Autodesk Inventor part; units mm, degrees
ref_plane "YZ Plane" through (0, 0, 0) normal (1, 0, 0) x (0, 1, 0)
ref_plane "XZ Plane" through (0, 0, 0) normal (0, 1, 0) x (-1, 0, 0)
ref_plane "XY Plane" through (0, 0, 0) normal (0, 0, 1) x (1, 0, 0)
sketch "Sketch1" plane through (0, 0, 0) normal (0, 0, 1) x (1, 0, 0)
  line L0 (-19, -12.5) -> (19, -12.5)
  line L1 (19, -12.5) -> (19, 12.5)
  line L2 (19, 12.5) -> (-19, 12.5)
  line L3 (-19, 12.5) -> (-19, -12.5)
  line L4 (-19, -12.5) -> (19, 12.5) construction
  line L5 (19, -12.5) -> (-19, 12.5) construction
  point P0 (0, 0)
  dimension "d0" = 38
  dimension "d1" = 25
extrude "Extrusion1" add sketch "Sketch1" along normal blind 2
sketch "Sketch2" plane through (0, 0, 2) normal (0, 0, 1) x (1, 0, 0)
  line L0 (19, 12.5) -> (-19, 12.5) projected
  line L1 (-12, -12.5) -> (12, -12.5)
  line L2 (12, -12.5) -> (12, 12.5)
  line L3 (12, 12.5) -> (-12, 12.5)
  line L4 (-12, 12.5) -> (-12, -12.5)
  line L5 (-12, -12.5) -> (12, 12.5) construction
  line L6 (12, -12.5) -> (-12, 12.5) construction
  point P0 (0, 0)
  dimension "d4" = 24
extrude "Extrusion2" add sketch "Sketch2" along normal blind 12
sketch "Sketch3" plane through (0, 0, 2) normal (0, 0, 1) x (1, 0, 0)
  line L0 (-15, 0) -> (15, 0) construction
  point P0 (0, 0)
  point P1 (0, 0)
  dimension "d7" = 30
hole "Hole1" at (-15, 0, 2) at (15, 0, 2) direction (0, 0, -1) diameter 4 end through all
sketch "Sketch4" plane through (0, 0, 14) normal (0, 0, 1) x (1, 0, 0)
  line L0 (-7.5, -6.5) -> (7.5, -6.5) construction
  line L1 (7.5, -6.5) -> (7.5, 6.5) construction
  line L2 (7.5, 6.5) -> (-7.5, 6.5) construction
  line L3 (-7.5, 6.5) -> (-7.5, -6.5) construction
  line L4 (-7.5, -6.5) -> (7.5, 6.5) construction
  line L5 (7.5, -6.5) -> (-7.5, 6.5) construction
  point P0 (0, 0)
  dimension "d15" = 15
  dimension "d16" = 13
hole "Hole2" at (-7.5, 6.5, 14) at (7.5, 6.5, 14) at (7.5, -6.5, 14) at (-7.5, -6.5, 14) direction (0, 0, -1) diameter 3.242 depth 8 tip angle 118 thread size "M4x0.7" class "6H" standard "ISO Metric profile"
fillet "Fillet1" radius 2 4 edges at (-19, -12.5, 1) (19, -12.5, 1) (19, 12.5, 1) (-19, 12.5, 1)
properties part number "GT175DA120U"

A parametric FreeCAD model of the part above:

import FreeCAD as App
import Part
import Sketcher
Q = App.Units.Quantity


def edges_at(feature, points):
    """Names of the edges that pass closest to the given points."""
    edges = feature.Shape.Edges
    near = lambda p: min(range(len(edges)), key=lambda i: edges[i].distToShape(Part.Vertex(*p))[0])
    return sorted({f"Edge{near(p) + 1}" for p in points})

doc = App.newDocument("Part")
body = doc.addObject("PartDesign::Body", "Body")

# Sketch on XY plane
sketch1 = body.newObject("Sketcher::SketchObject", "Sketch")
sketch1.AttachmentSupport = (doc.getObject("XY_Plane"), [""])
sketch1.MapMode = "FlatFace"
sketch1.addGeometry([
    Part.LineSegment(App.Vector(-19, 12, 0), App.Vector(-19, -12, 0)),
    Part.LineSegment(App.Vector(-19, -12, 0), App.Vector(19, -12, 0)),
    Part.LineSegment(App.Vector(19, -12, 0), App.Vector(19, 12, 0)),
    Part.LineSegment(App.Vector(19, 12, 0), App.Vector(-19, 12, 0)),
], False)
sketch1.addConstraint([
    Sketcher.Constraint("Coincident", 0, 2, 1, 1),
    Sketcher.Constraint("Coincident", 1, 2, 2, 1),
    Sketcher.Constraint("Coincident", 2, 2, 3, 1),
    Sketcher.Constraint("Coincident", 3, 2, 0, 1),
    Sketcher.Constraint("Vertical", 0),
    Sketcher.Constraint("Horizontal", 1),
    Sketcher.Constraint("Vertical", 2),
    Sketcher.Constraint("Horizontal", 3),
    Sketcher.Constraint("Symmetric", 0, 2, 2, 2, -1, 1),
    Sketcher.Constraint("DistanceX", 1, 1, 1, 2, Q("38 mm")),
    Sketcher.Constraint("DistanceY", 0, 2, 0, 1, Q("25 mm")),
])
pad1 = body.newObject("PartDesign::Pad", "Pad")
pad1.Profile = sketch1
pad1.Length = 2

# Sketch on XY plane
sketch2 = body.newObject("Sketcher::SketchObject", "Sketch001")
sketch2.AttachmentSupport = (doc.getObject("XY_Plane"), [""])
sketch2.MapMode = "FlatFace"
sketch2.AttachmentOffset = App.Placement(App.Vector(0, 0, 2), App.Rotation())
sketch2.addGeometry([
    Part.LineSegment(App.Vector(12, -12, 0), App.Vector(12, 12, 0)),
    Part.LineSegment(App.Vector(12, 12, 0), App.Vector(-12, 12, 0)),
    Part.LineSegment(App.Vector(-12, 12, 0), App.Vector(-12, -12, 0)),
    Part.LineSegment(App.Vector(-12, -12, 0), App.Vector(12, -12, 0)),
], False)
sketch2.addConstraint([
    Sketcher.Constraint("Coincident", 0, 2, 1, 1),
    Sketcher.Constraint("Coincident", 1, 2, 2, 1),
    Sketcher.Constraint("Coincident", 2, 2, 3, 1),
    Sketcher.Constraint("Coincident", 3, 2, 0, 1),
    Sketcher.Constraint("Vertical", 0),
    Sketcher.Constraint("Horizontal", 1),
    Sketcher.Constraint("Vertical", 2),
    Sketcher.Constraint("Horizontal", 3),
    Sketcher.Constraint("Symmetric", 0, 2, 2, 2, -1, 1),
    Sketcher.Constraint("DistanceX", 1, 2, 1, 1, Q("24 mm")),
    Sketcher.Constraint("DistanceY", 0, 1, 0, 2, Q("25 mm")),
])
pad2 = body.newObject("PartDesign::Pad", "Pad001")
pad2.Profile = sketch2
pad2.Length = 12

# Sketch on XY plane
sketch3 = body.newObject("Sketcher::SketchObject", "Sketch002")
sketch3.AttachmentSupport = (doc.getObject("XY_Plane"), [""])
sketch3.MapMode = "FlatFace"
sketch3.AttachmentOffset = App.Placement(App.Vector(0, 0, 2), App.Rotation())
sketch3.addGeometry([
    Part.Circle(App.Vector(-15, 0, 0), App.Vector(0, 0, 1), 2),
    Part.Circle(App.Vector(15, 0, 0), App.Vector(0, 0, 1), 2),
], False)
sketch3.addConstraint([
    Sketcher.Constraint("Equal", 0, 1),
    Sketcher.Constraint("Symmetric", 0, 3, 1, 3, -1, 1),
    Sketcher.Constraint("PointOnObject", 0, 3, -1),
    Sketcher.Constraint("Diameter", 0, Q("4 mm")),
    Sketcher.Constraint("DistanceX", 0, 3, -1, 1, Q("15 mm")),
])
doc.recompute()
hole = body.newObject("PartDesign::Hole", "Hole")
hole.Profile = sketch3
hole.ThreadType = "None"
hole.Diameter = 4
hole.DepthType = "ThroughAll"

# Sketch on XY plane
sketch4 = body.newObject("Sketcher::SketchObject", "Sketch003")
sketch4.AttachmentSupport = (doc.getObject("XY_Plane"), [""])
sketch4.MapMode = "FlatFace"
sketch4.AttachmentOffset = App.Placement(App.Vector(0, 0, 14), App.Rotation())
sketch4.addGeometry([
    Part.Circle(App.Vector(-7.5, 6.5, 0), App.Vector(0, 0, 1), 1.6),
    Part.Circle(App.Vector(7.5, 6.5, 0), App.Vector(0, 0, 1), 1.6),
    Part.Circle(App.Vector(7.5, -6.5, 0), App.Vector(0, 0, 1), 1.6),
    Part.Circle(App.Vector(-7.5, -6.5, 0), App.Vector(0, 0, 1), 1.6),
], False)
sketch4.addConstraint([
    Sketcher.Constraint("Equal", 0, 1),
    Sketcher.Constraint("Equal", 1, 2),
    Sketcher.Constraint("Equal", 2, 3),
    Sketcher.Constraint("Symmetric", 0, 3, 2, 3, -1, 1),
    Sketcher.Constraint("Symmetric", 1, 3, 3, 3, -1, 1),
    Sketcher.Constraint("Symmetric", 0, 3, 1, 3, -2),
    Sketcher.Constraint("Diameter", 0, Q("3.242 mm")),
    Sketcher.Constraint("DistanceX", 0, 3, 1, 3, Q("15 mm")),
    Sketcher.Constraint("DistanceY", 2, 3, 1, 3, Q("13 mm")),
])
doc.recompute()
hole2 = body.newObject("PartDesign::Hole", "Hole001")
hole2.Profile = sketch4
hole2.ThreadType = "None"
hole2.Diameter = 3.242
hole2.DepthType = "Dimension"
hole2.Depth = 8
hole2.DrillPoint = "Angled"
hole2.DrillPointAngle = 118
doc.recompute()

fillet = body.newObject("PartDesign::Fillet", "Fillet")
fillet.Base = (hole2, edges_at(hole2, [
    (-19, -12.5, 1),
    (19, -12.5, 1),
    (19, 12.5, 1),
    (-19, 12.5, 1),
]))
fillet.Radius = 2

doc.recompute()
